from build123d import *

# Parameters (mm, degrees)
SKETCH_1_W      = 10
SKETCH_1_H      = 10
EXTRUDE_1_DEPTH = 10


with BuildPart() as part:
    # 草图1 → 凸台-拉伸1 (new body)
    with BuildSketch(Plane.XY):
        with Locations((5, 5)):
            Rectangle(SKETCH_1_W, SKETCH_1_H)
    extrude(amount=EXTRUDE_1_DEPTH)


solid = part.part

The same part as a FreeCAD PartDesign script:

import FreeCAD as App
import Part
import Sketcher

V = App.Vector
Q = App.Units.Quantity

doc = App.newDocument("Part")
body = doc.addObject("PartDesign::Body", "Body")

# Sketch on XY plane
sketch1 = body.newObject("Sketcher::SketchObject", "Sketch")
sketch1.AttachmentSupport = (doc.getObject("XY_Plane"), [""])
sketch1.MapMode = "FlatFace"
sketch1.addGeometry([
    Part.LineSegment(V(0, 10, 0), V(0, 0, 0)),
    Part.LineSegment(V(0, 0, 0), V(10, 0, 0)),
    Part.LineSegment(V(10, 0, 0), V(10, 10, 0)),
    Part.LineSegment(V(10, 10, 0), V(0, 10, 0)),
], False)
sketch1.addConstraint([
    Sketcher.Constraint("Coincident", 0, 2, 1, 1),
    Sketcher.Constraint("Coincident", 1, 2, 2, 1),
    Sketcher.Constraint("Coincident", 2, 2, 3, 1),
    Sketcher.Constraint("Coincident", 3, 2, 0, 1),
    Sketcher.Constraint("Vertical", 0),
    Sketcher.Constraint("Horizontal", 1),
    Sketcher.Constraint("Vertical", 2),
    Sketcher.Constraint("Horizontal", 3),
    Sketcher.Constraint("Coincident", 0, 2, -1, 1),
    Sketcher.Constraint("Equal", 3, 0),
    Sketcher.Constraint("DistanceX", 1, 1, 1, 2, Q("10 mm")),
])
pad1 = body.newObject("PartDesign::Pad", "Pad")
pad1.Profile = sketch1
pad1.Length = 10

doc.recompute()
